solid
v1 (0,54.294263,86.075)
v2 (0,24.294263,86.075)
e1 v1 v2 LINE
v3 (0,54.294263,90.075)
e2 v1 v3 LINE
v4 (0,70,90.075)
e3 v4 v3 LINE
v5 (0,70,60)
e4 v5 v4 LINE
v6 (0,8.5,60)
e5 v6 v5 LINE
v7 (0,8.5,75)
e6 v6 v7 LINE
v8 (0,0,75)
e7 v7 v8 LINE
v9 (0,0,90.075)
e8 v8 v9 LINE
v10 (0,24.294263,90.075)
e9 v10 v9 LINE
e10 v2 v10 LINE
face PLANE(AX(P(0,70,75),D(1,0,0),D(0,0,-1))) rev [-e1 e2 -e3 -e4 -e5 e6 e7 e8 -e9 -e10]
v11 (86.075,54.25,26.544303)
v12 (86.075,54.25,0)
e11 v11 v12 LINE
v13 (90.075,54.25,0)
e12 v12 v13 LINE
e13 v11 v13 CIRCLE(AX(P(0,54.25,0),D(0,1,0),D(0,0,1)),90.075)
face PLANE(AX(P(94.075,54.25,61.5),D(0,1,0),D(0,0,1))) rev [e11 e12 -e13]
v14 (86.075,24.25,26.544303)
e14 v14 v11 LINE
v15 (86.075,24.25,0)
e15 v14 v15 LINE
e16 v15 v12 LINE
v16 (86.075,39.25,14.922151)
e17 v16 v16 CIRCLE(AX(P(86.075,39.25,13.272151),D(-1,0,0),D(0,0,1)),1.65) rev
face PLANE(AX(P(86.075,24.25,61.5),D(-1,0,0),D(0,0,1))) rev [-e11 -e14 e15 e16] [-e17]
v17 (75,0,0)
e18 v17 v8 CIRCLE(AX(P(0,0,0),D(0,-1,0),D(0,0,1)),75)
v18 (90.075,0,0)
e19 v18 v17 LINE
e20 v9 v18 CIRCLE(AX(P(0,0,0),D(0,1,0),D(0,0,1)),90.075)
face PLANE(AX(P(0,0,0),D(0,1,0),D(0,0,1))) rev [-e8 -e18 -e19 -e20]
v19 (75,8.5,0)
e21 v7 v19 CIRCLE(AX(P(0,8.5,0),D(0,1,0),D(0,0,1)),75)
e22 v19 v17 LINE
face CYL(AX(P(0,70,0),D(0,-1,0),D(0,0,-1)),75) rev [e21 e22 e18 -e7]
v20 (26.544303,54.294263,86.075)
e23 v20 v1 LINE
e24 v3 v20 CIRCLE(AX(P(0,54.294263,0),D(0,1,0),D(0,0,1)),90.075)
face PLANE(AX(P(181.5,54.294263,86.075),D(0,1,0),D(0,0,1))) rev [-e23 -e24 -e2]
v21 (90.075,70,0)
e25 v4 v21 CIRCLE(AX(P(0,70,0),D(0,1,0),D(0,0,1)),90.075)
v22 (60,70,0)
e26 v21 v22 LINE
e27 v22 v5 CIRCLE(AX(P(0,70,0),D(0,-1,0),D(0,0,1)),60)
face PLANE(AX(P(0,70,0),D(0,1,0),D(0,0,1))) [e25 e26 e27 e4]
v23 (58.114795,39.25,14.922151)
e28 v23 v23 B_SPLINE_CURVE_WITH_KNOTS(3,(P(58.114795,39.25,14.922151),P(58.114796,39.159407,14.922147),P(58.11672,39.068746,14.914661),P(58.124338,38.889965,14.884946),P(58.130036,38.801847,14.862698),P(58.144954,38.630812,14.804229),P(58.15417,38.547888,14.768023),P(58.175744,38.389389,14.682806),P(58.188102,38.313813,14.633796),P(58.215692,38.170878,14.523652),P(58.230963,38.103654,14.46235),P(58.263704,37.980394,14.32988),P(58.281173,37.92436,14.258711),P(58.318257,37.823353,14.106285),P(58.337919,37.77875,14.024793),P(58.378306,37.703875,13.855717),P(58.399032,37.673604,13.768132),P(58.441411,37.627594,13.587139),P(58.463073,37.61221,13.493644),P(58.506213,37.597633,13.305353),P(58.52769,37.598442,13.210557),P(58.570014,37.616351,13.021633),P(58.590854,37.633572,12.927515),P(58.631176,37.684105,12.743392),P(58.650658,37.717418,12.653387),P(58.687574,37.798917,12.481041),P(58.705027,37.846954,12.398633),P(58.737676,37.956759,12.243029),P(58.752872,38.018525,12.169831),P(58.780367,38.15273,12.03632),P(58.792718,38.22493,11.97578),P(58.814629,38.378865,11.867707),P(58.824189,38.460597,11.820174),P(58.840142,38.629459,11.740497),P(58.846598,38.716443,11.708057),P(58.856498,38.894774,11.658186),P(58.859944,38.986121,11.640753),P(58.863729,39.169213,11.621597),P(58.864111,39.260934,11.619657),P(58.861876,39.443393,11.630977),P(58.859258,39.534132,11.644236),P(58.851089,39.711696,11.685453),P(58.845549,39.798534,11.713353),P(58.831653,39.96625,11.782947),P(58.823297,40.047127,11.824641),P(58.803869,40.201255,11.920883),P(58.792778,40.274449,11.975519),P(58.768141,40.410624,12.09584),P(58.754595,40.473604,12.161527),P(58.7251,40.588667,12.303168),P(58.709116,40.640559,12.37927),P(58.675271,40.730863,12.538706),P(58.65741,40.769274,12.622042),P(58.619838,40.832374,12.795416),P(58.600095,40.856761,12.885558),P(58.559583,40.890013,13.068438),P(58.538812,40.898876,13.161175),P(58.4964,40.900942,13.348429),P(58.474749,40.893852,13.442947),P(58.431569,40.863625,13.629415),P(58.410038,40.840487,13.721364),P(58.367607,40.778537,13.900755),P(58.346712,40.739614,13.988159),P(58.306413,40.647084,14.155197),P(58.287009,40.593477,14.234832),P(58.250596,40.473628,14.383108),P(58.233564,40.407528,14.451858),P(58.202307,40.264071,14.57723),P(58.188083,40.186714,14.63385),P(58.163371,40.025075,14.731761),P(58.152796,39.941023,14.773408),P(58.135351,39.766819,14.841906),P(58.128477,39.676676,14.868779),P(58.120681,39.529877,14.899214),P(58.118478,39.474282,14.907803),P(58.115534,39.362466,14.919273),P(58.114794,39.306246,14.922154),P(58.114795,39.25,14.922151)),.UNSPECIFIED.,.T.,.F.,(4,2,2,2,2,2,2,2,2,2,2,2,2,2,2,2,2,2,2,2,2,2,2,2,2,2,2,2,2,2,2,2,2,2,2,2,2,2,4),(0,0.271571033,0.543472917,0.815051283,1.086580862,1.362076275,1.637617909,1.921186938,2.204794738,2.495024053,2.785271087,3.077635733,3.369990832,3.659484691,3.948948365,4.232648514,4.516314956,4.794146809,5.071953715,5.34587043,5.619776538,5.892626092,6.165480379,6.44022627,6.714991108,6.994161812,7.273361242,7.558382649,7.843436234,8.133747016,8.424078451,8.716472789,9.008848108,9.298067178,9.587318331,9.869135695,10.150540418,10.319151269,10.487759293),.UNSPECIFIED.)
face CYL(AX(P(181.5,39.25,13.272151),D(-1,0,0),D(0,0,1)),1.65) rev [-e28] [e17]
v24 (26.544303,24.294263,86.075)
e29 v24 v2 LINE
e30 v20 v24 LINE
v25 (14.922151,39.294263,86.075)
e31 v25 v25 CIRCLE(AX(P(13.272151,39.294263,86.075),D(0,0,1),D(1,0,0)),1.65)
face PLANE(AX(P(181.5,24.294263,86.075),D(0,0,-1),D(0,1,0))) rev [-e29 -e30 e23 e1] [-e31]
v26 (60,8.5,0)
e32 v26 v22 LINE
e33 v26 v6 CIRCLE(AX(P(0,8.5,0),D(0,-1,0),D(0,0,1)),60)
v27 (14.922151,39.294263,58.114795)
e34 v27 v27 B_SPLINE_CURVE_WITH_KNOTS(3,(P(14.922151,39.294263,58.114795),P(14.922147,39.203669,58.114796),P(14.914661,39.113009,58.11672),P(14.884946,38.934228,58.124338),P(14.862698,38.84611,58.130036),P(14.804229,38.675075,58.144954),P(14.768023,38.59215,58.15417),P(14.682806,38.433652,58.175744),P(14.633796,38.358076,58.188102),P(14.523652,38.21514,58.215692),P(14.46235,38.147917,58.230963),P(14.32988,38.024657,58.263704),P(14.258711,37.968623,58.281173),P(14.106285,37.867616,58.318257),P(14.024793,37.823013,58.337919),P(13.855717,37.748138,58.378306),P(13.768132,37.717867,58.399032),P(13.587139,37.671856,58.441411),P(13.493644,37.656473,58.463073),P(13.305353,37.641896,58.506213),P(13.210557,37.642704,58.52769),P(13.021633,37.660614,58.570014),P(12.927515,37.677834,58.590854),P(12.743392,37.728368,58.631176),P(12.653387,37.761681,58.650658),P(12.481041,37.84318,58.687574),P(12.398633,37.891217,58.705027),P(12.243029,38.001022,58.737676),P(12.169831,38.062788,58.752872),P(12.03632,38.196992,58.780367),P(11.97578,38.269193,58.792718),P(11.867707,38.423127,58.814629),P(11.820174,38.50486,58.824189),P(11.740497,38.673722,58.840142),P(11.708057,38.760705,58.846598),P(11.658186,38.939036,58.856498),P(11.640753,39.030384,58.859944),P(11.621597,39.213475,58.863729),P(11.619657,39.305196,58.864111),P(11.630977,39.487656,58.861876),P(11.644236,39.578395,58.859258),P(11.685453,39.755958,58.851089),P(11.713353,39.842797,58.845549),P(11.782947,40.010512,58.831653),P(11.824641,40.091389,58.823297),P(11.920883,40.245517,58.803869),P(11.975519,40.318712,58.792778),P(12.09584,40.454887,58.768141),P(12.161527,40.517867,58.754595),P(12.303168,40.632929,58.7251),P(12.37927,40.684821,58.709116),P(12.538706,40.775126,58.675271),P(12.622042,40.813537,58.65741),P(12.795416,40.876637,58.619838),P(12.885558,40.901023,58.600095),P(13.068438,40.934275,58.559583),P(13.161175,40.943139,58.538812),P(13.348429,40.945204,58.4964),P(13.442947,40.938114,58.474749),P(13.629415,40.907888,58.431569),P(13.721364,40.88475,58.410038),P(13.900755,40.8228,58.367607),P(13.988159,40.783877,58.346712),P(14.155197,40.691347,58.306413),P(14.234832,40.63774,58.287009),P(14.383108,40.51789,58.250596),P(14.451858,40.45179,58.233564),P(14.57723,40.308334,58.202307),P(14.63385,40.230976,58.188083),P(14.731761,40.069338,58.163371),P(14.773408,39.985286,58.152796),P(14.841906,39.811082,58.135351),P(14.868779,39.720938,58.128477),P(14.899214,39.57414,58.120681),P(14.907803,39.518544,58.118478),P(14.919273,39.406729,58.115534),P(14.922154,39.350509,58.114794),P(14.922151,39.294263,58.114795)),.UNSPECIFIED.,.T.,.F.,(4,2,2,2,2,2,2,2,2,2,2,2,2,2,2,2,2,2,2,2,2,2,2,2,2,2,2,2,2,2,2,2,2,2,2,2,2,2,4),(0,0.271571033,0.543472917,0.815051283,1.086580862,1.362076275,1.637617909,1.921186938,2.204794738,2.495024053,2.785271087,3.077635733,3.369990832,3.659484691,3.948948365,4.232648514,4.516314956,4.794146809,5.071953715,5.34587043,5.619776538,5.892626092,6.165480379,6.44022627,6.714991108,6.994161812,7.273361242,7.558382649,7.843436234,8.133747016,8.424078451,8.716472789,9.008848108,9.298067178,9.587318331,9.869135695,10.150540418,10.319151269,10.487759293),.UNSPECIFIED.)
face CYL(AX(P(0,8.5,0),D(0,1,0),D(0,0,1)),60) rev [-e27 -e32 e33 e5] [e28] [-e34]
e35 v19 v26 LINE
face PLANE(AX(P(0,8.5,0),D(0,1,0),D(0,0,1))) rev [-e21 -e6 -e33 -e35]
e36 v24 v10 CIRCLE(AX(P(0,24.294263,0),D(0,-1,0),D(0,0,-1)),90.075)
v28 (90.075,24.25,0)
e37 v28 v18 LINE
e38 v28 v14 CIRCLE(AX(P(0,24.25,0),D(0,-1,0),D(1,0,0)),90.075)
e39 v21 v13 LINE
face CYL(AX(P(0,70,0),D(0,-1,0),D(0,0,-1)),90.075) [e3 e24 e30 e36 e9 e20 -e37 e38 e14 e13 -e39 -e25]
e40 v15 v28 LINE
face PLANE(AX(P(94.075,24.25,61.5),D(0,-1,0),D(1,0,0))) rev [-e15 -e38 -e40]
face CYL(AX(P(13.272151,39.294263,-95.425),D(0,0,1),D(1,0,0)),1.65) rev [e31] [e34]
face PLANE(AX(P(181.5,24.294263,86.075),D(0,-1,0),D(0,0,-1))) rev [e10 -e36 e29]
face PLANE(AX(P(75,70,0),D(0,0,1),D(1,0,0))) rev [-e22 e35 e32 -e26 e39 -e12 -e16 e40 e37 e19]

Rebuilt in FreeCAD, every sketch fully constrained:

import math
import FreeCAD as App
import Part
import Sketcher

V = App.Vector

doc = App.newDocument("Part")
body = doc.addObject("PartDesign::Body", "Body")

# Sketch on XZ plane
sketch1 = body.newObject("Sketcher::SketchObject", "Sketch")
sketch1.AttachmentSupport = (doc.getObject("XZ_Plane"), [""])
sketch1.MapMode = "FlatFace"
sketch1.addGeometry([
    Part.LineSegment(V(90, 0, 0), V(75, 0, 0)),
    Part.ArcOfCircle(Part.Circle(V(0, 0, 0), V(0, 0, 1), 75), math.radians(0), math.radians(90)),
    Part.LineSegment(V(0, 75, 0), V(0, 90, 0)),
    Part.ArcOfCircle(Part.Circle(V(0, 0, 0), V(0, 0, 1), 90), math.radians(0), math.radians(90)),
], False)
sketch1.addConstraint([
    Sketcher.Constraint("Coincident", 0, 2, 1, 1),
    Sketcher.Constraint("Coincident", 1, 2, 2, 1),
    Sketcher.Constraint("Coincident", 2, 2, 3, 2),
    Sketcher.Constraint("Coincident", 3, 1, 0, 1),
    Sketcher.Constraint("Horizontal", 0),
    Sketcher.Constraint("Vertical", 2),
    Sketcher.Constraint("Coincident", 1, 3, -1, 1),
    Sketcher.Constraint("Coincident", 3, 3, -1, 1),
    Sketcher.Constraint("PointOnObject", 0, 2, -1),
    Sketcher.Constraint("PointOnObject", 1, 2, -2),
    Sketcher.Constraint("Radius", 1, 75.0),
    Sketcher.Constraint("Radius", 3, 90.075),
])
pad1 = body.newObject("PartDesign::Pad", "Pad")
pad1.Profile = sketch1
pad1.Length = 70
pad1.Reversed = True

# Sketch on XZ plane
sketch2 = body.newObject("Sketcher::SketchObject", "Sketch001")
sketch2.AttachmentSupport = (doc.getObject("XZ_Plane"), [""])
sketch2.MapMode = "FlatFace"
sketch2.AttachmentOffset = App.Placement(V(0, 0, -8.5), App.Rotation())
sketch2.addGeometry([
    Part.LineSegment(V(0, 60, 0), V(0, 75, 0)),
    Part.ArcOfCircle(Part.Circle(V(0, 0, 0), V(0, 0, 1), 75), math.radians(0), math.radians(90)),
    Part.LineSegment(V(75, 0, 0), V(60, 0, 0)),
    Part.ArcOfCircle(Part.Circle(V(0, 0, 0), V(0, 0, 1), 60), math.radians(0), math.radians(90)),
], False)
sketch2.addConstraint([
    Sketcher.Constraint("Coincident", 0, 2, 1, 2),
    Sketcher.Constraint("Coincident", 1, 1, 2, 1),
    Sketcher.Constraint("Coincident", 2, 2, 3, 1),
    Sketcher.Constraint("Coincident", 3, 2, 0, 1),
    Sketcher.Constraint("Vertical", 0),
    Sketcher.Constraint("Horizontal", 2),
    Sketcher.Constraint("Coincident", 1, 3, -1, 1),
    Sketcher.Constraint("Coincident", 3, 3, -1, 1),
    Sketcher.Constraint("PointOnObject", 0, 2, -2),
    Sketcher.Constraint("PointOnObject", 1, 1, -1),
    Sketcher.Constraint("Radius", 1, 75.0),
    Sketcher.Constraint("Radius", 3, 60.0),
])
pad2 = body.newObject("PartDesign::Pad", "Pad001")
pad2.Profile = sketch2
pad2.Length = 61.5
pad2.Reversed = True

# Sketch on XY plane
sketch3 = body.newObject("Sketcher::SketchObject", "Sketch002")
sketch3.AttachmentSupport = (doc.getObject("XY_Plane"), [""])
sketch3.MapMode = "FlatFace"
sketch3.addGeometry([
    Part.LineSegment(V(94, 54, 0), V(94, 24, 0)),
    Part.LineSegment(V(94, 24, 0), V(86, 24, 0)),
    Part.LineSegment(V(86, 24, 0), V(86, 54, 0)),
    Part.LineSegment(V(86, 54, 0), V(94, 54, 0)),
], False)
sketch3.addConstraint([
    Sketcher.Constraint("Coincident", 0, 2, 1, 1),
    Sketcher.Constraint("Coincident", 1, 2, 2, 1),
    Sketcher.Constraint("Coincident", 2, 2, 3, 1),
    Sketcher.Constraint("Coincident", 3, 2, 0, 1),
    Sketcher.Constraint("Vertical", 0),
    Sketcher.Constraint("Horizontal", 1),
    Sketcher.Constraint("Vertical", 2),
    Sketcher.Constraint("Horizontal", 3),
    Sketcher.Constraint("DistanceX", 1, 2, 1, 1, 8.0),
    Sketcher.Constraint("DistanceY", 0, 2, 0, 1, 30.0),
    Sketcher.Constraint("DistanceY", -1, 1, 0, 2, 24.25),
    Sketcher.Constraint("DistanceX", -1, 1, 0, 2, 94.075),
])
pocket1 = body.newObject("PartDesign::Pocket", "Pocket")
pocket1.Profile = sketch3
pocket1.Length = 61.5
pocket1.Reversed = True

# Sketch on YZ plane
sketch4 = body.newObject("Sketcher::SketchObject", "Sketch003")
sketch4.AttachmentSupport = (doc.getObject("YZ_Plane"), [""])
sketch4.MapMode = "FlatFace"
sketch4.addGeometry(Part.Circle(V(39.2, 13.3, 0), V(0, 0, 1), 1.6), False)
sketch4.addConstraint([
    Sketcher.Constraint("Diameter", 0, 3.3),
    Sketcher.Constraint("DistanceX", -1, 1, 0, 3, 39.25),
    Sketcher.Constraint("DistanceY", -1, 1, 0, 3, 13.272151),
])
pocket2 = body.newObject("PartDesign::Pocket", "Pocket001")
pocket2.Profile = sketch4
pocket2.Length = 181.5
pocket2.Reversed = True

# Sketch on YZ plane
sketch5 = body.newObject("Sketcher::SketchObject", "Sketch004")
sketch5.AttachmentSupport = (doc.getObject("YZ_Plane"), [""])
sketch5.MapMode = "FlatFace"
sketch5.addGeometry([
    Part.LineSegment(V(54, 86, 0), V(24, 86, 0)),
    Part.LineSegment(V(24, 86, 0), V(24, 94, 0)),
    Part.LineSegment(V(24, 94, 0), V(54, 94, 0)),
    Part.LineSegment(V(54, 94, 0), V(54, 86, 0)),
], False)
sketch5.addConstraint([
    Sketcher.Constraint("Coincident", 0, 2, 1, 1),
    Sketcher.Constraint("Coincident", 1, 2, 2, 1),
    Sketcher.Constraint("Coincident", 2, 2, 3, 1),
    Sketcher.Constraint("Coincident", 3, 2, 0, 1),
    Sketcher.Constraint("Horizontal", 0),
    Sketcher.Constraint("Vertical", 1),
    Sketcher.Constraint("Horizontal", 2),
    Sketcher.Constraint("Vertical", 3),
    Sketcher.Constraint("DistanceX", 0, 2, 0, 1, 30.0),
    Sketcher.Constraint("DistanceY", 1, 1, 1, 2, 8.0),
    Sketcher.Constraint("DistanceY", -1, 1, 0, 2, 86.075),
    Sketcher.Constraint("DistanceX", -1, 1, 0, 2, 24.294263),
])
pocket3 = body.newObject("PartDesign::Pocket", "Pocket002")
pocket3.Profile = sketch5
pocket3.Length = 181.5
pocket3.Reversed = True

# Sketch on XY plane
sketch6 = body.newObject("Sketcher::SketchObject", "Sketch005")
sketch6.AttachmentSupport = (doc.getObject("XY_Plane"), [""])
sketch6.MapMode = "FlatFace"
sketch6.AttachmentOffset = App.Placement(V(0, 0, 86.075), App.Rotation())
sketch6.addGeometry(Part.Circle(V(13.3, 39.3, 0), V(0, 0, 1), 1.6), False)
sketch6.addConstraint([
    Sketcher.Constraint("Diameter", 0, 3.3),
    Sketcher.Constraint("DistanceX", -1, 1, 0, 3, 13.272151),
    Sketcher.Constraint("DistanceY", -1, 1, 0, 3, 39.294263),
])
pocket4 = body.newObject("PartDesign::Pocket", "Pocket003")
pocket4.Profile = sketch6
pocket4.Length = 181.5

doc.recompute()
